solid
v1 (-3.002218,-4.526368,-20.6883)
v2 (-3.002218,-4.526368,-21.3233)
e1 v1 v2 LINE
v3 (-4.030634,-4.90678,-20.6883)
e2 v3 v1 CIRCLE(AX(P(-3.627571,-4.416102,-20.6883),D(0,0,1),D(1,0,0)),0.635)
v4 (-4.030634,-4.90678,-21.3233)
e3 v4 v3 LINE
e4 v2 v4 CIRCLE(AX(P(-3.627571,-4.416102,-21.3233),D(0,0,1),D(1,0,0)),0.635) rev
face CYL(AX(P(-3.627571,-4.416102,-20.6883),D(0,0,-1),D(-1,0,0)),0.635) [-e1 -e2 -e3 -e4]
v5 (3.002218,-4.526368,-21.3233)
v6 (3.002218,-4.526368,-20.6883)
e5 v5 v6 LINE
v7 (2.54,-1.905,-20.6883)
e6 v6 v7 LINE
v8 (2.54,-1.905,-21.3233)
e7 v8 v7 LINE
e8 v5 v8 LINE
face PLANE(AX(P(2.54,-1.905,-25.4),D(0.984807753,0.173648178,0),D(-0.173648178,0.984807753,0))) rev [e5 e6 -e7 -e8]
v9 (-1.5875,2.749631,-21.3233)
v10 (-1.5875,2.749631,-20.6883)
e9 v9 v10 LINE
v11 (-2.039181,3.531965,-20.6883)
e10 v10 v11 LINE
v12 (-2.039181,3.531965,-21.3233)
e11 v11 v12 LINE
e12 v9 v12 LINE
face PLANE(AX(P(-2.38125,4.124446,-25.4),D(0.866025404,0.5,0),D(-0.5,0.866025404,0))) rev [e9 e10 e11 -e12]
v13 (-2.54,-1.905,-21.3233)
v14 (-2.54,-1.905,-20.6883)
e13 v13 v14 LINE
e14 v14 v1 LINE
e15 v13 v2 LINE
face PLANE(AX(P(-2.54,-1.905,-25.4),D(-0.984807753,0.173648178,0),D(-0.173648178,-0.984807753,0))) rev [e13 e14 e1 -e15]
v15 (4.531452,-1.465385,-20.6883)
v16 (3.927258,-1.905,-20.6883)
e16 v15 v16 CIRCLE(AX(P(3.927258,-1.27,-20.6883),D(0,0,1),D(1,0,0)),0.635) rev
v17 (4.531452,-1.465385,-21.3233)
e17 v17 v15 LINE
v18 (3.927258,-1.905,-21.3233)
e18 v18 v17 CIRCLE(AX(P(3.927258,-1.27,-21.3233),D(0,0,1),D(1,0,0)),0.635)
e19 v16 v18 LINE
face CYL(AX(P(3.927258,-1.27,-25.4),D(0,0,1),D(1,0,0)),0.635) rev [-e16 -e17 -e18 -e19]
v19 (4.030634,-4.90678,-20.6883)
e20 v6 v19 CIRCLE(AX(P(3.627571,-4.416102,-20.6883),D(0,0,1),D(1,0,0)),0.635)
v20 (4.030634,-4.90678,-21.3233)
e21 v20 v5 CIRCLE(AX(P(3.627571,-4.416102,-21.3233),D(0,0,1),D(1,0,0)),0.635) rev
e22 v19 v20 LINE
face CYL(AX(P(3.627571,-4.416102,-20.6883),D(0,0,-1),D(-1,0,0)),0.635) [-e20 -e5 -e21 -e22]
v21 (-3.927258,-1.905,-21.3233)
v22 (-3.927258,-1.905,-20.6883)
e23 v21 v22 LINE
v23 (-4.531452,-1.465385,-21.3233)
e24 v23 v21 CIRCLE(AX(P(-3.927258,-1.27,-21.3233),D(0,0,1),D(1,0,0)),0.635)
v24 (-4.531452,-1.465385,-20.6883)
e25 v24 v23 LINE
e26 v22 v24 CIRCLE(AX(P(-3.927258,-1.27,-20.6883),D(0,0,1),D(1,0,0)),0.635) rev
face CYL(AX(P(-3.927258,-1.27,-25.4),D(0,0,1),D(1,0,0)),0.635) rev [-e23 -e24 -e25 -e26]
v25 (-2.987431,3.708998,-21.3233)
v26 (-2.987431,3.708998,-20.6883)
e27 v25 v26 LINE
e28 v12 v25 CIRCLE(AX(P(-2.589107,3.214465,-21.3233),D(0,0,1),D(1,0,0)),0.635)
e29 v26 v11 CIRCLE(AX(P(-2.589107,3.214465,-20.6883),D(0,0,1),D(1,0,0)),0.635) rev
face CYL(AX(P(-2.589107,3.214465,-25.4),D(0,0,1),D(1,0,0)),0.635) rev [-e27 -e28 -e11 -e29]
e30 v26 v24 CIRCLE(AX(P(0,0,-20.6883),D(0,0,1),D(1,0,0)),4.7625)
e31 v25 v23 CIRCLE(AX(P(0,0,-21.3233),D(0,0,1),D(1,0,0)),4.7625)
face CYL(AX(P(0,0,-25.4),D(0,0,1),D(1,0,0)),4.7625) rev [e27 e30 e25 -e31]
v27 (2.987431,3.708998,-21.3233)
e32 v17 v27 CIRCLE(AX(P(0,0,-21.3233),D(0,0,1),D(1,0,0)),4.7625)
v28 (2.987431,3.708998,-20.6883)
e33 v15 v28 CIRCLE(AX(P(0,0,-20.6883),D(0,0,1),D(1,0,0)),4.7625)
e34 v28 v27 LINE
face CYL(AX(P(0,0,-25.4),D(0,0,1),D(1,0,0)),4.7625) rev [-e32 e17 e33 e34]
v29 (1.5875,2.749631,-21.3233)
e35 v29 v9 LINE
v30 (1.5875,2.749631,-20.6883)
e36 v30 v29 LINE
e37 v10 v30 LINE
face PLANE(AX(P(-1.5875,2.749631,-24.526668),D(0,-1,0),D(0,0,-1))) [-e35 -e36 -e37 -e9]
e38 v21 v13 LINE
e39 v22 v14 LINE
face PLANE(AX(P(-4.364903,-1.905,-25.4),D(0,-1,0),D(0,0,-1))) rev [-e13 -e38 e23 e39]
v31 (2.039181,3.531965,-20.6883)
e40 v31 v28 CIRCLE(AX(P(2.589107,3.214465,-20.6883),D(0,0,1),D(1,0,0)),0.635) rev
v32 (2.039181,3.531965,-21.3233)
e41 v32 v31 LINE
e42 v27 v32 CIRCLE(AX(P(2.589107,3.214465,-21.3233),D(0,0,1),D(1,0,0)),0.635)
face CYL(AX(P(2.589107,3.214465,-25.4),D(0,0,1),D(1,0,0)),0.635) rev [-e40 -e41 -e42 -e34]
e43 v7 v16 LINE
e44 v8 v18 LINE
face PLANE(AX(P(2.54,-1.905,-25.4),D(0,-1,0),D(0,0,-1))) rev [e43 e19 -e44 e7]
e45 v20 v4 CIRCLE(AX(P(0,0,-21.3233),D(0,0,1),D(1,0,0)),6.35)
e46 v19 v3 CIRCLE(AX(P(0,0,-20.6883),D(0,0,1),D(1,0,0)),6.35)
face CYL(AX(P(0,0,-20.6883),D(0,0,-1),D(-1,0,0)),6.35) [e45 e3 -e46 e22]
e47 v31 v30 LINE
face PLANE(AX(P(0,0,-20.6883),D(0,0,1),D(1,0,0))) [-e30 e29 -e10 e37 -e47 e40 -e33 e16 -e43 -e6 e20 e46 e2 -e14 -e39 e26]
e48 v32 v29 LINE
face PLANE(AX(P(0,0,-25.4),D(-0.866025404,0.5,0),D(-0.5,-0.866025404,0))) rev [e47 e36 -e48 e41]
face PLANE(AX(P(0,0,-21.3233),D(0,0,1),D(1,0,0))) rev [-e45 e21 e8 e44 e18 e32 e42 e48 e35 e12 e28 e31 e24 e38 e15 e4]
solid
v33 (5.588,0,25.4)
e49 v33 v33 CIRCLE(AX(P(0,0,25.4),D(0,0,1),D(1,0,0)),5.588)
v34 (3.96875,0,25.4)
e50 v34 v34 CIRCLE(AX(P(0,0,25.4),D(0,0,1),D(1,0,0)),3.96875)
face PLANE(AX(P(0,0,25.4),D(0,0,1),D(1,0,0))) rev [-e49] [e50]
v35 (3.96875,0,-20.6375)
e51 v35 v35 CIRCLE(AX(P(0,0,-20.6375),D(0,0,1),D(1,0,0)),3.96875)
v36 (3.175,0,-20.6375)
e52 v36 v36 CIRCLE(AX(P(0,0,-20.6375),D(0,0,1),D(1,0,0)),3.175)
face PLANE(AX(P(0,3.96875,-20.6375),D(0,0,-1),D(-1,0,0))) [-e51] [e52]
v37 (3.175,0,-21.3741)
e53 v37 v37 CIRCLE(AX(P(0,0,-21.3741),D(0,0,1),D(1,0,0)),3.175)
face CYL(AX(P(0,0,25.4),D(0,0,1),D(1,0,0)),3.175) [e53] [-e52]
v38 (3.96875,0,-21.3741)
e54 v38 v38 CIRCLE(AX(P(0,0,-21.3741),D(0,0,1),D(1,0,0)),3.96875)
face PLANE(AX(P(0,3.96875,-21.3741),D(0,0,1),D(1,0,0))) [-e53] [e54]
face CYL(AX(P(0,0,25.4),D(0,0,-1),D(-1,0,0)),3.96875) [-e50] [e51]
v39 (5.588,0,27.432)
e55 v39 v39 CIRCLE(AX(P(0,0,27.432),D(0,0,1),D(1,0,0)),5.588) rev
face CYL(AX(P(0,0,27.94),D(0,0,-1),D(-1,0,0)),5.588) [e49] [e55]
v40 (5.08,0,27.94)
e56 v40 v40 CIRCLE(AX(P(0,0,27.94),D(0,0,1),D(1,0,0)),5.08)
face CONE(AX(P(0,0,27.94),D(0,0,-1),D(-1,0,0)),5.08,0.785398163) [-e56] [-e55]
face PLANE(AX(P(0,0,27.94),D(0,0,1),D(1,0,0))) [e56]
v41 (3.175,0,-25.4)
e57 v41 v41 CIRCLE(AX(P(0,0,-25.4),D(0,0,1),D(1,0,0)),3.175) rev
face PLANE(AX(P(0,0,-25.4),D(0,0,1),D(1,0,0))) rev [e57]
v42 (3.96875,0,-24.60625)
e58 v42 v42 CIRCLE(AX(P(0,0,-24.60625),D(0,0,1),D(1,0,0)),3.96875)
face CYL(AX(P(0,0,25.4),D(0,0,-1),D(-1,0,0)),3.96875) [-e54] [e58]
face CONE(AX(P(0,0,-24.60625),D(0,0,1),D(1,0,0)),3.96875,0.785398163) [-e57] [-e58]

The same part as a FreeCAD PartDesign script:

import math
import FreeCAD as App
import Part
import Sketcher
Q = App.Units.Quantity


def edges_at(feature, points):
    """Names of the edges that pass closest to the given points."""
    edges = feature.Shape.Edges
    near = lambda p: min(range(len(edges)), key=lambda i: edges[i].distToShape(Part.Vertex(*p))[0])
    return sorted({f"Edge{near(p) + 1}" for p in points})


def add_polygon(sketch, points):
    """Adds a closed chain of lines whose ends are joined by coincident constraints."""
    first, n = sketch.GeometryCount, len(points)
    for a, b in zip(points, points[1:] + points[:1]):
        sketch.addGeometry(Part.LineSegment(App.Vector(*a, 0), App.Vector(*b, 0)), False)
    for i in range(n):
        sketch.addConstraint(Sketcher.Constraint("Coincident", first + i, 2, first + (i + 1) % n, 1))

doc = App.newDocument("Part")
body = doc.addObject("PartDesign::Body", "Body")

# Sketch on XY plane
sketch1 = body.newObject("Sketcher::SketchObject", "Sketch")
sketch1.AttachmentSupport = (doc.getObject("XY_Plane"), [""])
sketch1.MapMode = "FlatFace"
sketch1.addGeometry(Part.Circle(App.Vector(0, 0, 0), App.Vector(0, 0, 1), 4), False)
sketch1.addConstraint(Sketcher.Constraint("Coincident", 0, 3, -1, 1))
sketch1.addConstraint(Sketcher.Constraint("Diameter", 0, Q("0.3125 in")))
pad1 = body.newObject("PartDesign::Pad", "Pad")
pad1.Profile = sketch1
pad1.Length = Q("2 in")
pad1.Midplane = True

# Sketch on YZ plane
sketch2 = body.newObject("Sketcher::SketchObject", "Sketch001")
sketch2.AttachmentSupport = (doc.getObject("YZ_Plane"), [""])
sketch2.MapMode = "FlatFace"
add_polygon(sketch2, [(4, -20.6), (3.2, -20.6), (3.2, -21.4), (4, -21.4)])  # lines 0-3
sketch2.addConstraint(Sketcher.Constraint("Horizontal", 0))
sketch2.addConstraint(Sketcher.Constraint("Vertical", 1))
sketch2.addConstraint(Sketcher.Constraint("Horizontal", 2))
sketch2.addConstraint(Sketcher.Constraint("Vertical", 3))
sketch2.addConstraint(Sketcher.Constraint("DistanceX", 0, 2, 0, 1, Q("0.03125 in")))
sketch2.addConstraint(Sketcher.Constraint("DistanceY", 1, 2, 1, 1, Q("0.029 in")))
sketch2.addConstraint(Sketcher.Constraint("DistanceX", -1, 1, 0, 2, Q("0.125 in")))
sketch2.addConstraint(Sketcher.Constraint("DistanceY", 0, 2, -1, 1, Q("0.8125 in")))
groove = body.newObject("PartDesign::Groove", "Groove")
groove.Profile = sketch2
groove.ReferenceAxis = (sketch2, ["V_Axis"])
groove.Angle = 360

# Sketch on XY plane
sketch3 = body.newObject("Sketcher::SketchObject", "Sketch002")
sketch3.AttachmentSupport = (doc.getObject("XY_Plane"), [""])
sketch3.MapMode = "FlatFace"
sketch3.AttachmentOffset = App.Placement(App.Vector(0, 0, 1 * 25.4), App.Rotation())
sketch3.addGeometry(Part.Circle(App.Vector(0, 0, 0), App.Vector(0, 0, 1), 6), False)
sketch3.addConstraint(Sketcher.Constraint("Coincident", 0, 3, -1, 1))
sketch3.addConstraint(Sketcher.Constraint("Diameter", 0, Q("0.44 in")))
pad2 = body.newObject("PartDesign::Pad", "Pad001")
pad2.Profile = sketch3
pad2.Length = Q("0.1 in")
doc.recompute()

chamfer = body.newObject("PartDesign::Chamfer", "Chamfer")
chamfer.Base = (pad2, edges_at(pad2, [(-5.588, 0, 27.94)]))
chamfer.Size = Q("0.02 in")
doc.recompute()

chamfer2 = body.newObject("PartDesign::Chamfer", "Chamfer001")
chamfer2.Base = (chamfer, edges_at(chamfer, [(-3.969, 0, -25.4)]))
chamfer2.Size = Q("0.03125 in")
body2 = doc.addObject("PartDesign::Body", "Body001")

# Sketch on XY plane
sketch4 = body2.newObject("Sketcher::SketchObject", "Sketch003")
sketch4.AttachmentSupport = (doc.getObject("XY_Plane001"), [""])
sketch4.MapMode = "FlatFace"
sketch4.AttachmentOffset = App.Placement(App.Vector(0, 0, -0.827 * 25.4), App.Rotation())
sketch4.addGeometry(Part.Circle(App.Vector(0, 0, 0), App.Vector(0, 0, 1), 6.3), False)
sketch4.addGeometry(Part.Circle(App.Vector(0, 0, 0), App.Vector(0, 0, 1), 3.2), False)
sketch4.addConstraint(Sketcher.Constraint("Coincident", 0, 3, -1, 1))
sketch4.addConstraint(Sketcher.Constraint("Coincident", 1, 3, -1, 1))
sketch4.addConstraint(Sketcher.Constraint("Diameter", 0, Q("0.5 in")))
sketch4.addConstraint(Sketcher.Constraint("Diameter", 1, Q("0.25 in")))
pad3 = body2.newObject("PartDesign::Pad", "Pad002")
pad3.Profile = sketch4
pad3.Length = Q("0.025 in")
pad3.Midplane = True

# Sketch on XY plane
sketch5 = body2.newObject("Sketcher::SketchObject", "Sketch004")
sketch5.AttachmentSupport = (doc.getObject("XY_Plane001"), [""])
sketch5.MapMode = "FlatFace"
sketch5.addGeometry(Part.LineSegment(App.Vector(0, 0, 0), App.Vector(-2.4, 4.1, 0)), False)
sketch5.addGeometry(Part.ArcOfCircle(Part.Circle(App.Vector(0, 0, 0), App.Vector(0, 0, 1), 4.8), math.radians(120), math.radians(204)), False)
sketch5.addGeometry(Part.LineSegment(App.Vector(-4.4, -1.9, 0), App.Vector(-2.5, -1.9, 0)), False)
sketch5.addGeometry(Part.LineSegment(App.Vector(-2.5, -1.9, 0), App.Vector(-3.2, -5.5, 0)), False)
sketch5.addGeometry(Part.ArcOfCircle(Part.Circle(App.Vector(0, 0, 0), App.Vector(0, 0, 1), 6.4), math.radians(-120), math.radians(-60)), False)
sketch5.addGeometry(Part.LineSegment(App.Vector(3.2, -5.5, 0), App.Vector(2.5, -1.9, 0)), False)
sketch5.addGeometry(Part.LineSegment(App.Vector(2.5, -1.9, 0), App.Vector(4.4, -1.9, 0)), False)
sketch5.addGeometry(Part.ArcOfCircle(Part.Circle(App.Vector(0, 0, 0), App.Vector(0, 0, 1), 4.8), math.radians(-24), math.radians(60)), False)
sketch5.addGeometry(Part.LineSegment(App.Vector(2.4, 4.1, 0), App.Vector(0, 0, 0)), False)
sketch5.addConstraint(Sketcher.Constraint("Coincident", 0, 2, 1, 1))
sketch5.addConstraint(Sketcher.Constraint("Coincident", 1, 2, 2, 1))
sketch5.addConstraint(Sketcher.Constraint("Coincident", 2, 2, 3, 1))
sketch5.addConstraint(Sketcher.Constraint("Coincident", 3, 2, 4, 1))
sketch5.addConstraint(Sketcher.Constraint("Coincident", 4, 2, 5, 1))
sketch5.addConstraint(Sketcher.Constraint("Coincident", 5, 2, 6, 1))
sketch5.addConstraint(Sketcher.Constraint("Coincident", 6, 2, 7, 1))
sketch5.addConstraint(Sketcher.Constraint("Coincident", 7, 2, 8, 1))
sketch5.addConstraint(Sketcher.Constraint("Coincident", 8, 2, 0, 1))
sketch5.addConstraint(Sketcher.Constraint("Horizontal", 2))
sketch5.addConstraint(Sketcher.Constraint("Horizontal", 6))
sketch5.addConstraint(Sketcher.Constraint("Coincident", 1, 3, -1, 1))
sketch5.addConstraint(Sketcher.Constraint("Coincident", 4, 3, -1, 1))
sketch5.addConstraint(Sketcher.Constraint("Coincident", 7, 3, -1, 1))
sketch5.addConstraint(Sketcher.Constraint("Coincident", 8, 2, -1, 1))
sketch5.addConstraint(Sketcher.Constraint("Equal", 1, 7))
sketch5.addConstraint(Sketcher.Constraint("Symmetric", 2, 2, 5, 2, -2))
sketch5.addConstraint(Sketcher.Constraint("Horizontal", 3, 2, 4, 2))
sketch5.addConstraint(Sketcher.Constraint("Horizontal", 0, 2, 7, 2))
sketch5.addConstraint(Sketcher.Constraint("Radius", 4, Q("0.25 in")))
sketch5.addConstraint(Sketcher.Constraint("Angle", 0, Q("120 deg")))
sketch5.addConstraint(Sketcher.Constraint("Angle", 3, Q("-100 deg")))
sketch5.addConstraint(Sketcher.Constraint("Radius", 1, Q("0.1875 in")))
sketch5.addConstraint(Sketcher.Constraint("DistanceX", 2, 2, -1, 1, Q("0.1 in")))
sketch5.addConstraint(Sketcher.Constraint("DistanceY", 1, 2, -1, 1, Q("0.075 in")))
pocket1 = body2.newObject("PartDesign::Pocket", "Pocket")
pocket1.Profile = sketch5
pocket1.Type = "ThroughAll"

# Sketch on XY plane
sketch6 = body2.newObject("Sketcher::SketchObject", "Sketch005")
sketch6.AttachmentSupport = (doc.getObject("XY_Plane001"), [""])
sketch6.MapMode = "FlatFace"
sketch6.AttachmentOffset = App.Placement(App.Vector(0, 0, -0.8145 * 25.4), App.Rotation())
sketch6.addGeometry(Part.LineSegment(App.Vector(-1.6, 2.7, 0), App.Vector(1.6, 2.7, 0)), False)
sketch6.addGeometry(Part.ArcOfCircle(Part.Circle(App.Vector(0, 0, 0), App.Vector(0, 0, 1), 3.2), math.radians(60), math.radians(120)), False)
sketch6.addConstraint(Sketcher.Constraint("Coincident", 0, 1, 1, 2))
sketch6.addConstraint(Sketcher.Constraint("Coincident", 1, 1, 0, 2))
sketch6.addConstraint(Sketcher.Constraint("Horizontal", 0))
sketch6.addConstraint(Sketcher.Constraint("Coincident", 1, 3, -1, 1))
sketch6.addConstraint(Sketcher.Constraint("Radius", 1, Q("0.125 in")))
sketch6.addConstraint(Sketcher.Constraint("DistanceX", 0, 1, 0, 2, Q("0.125 in")))
pad4 = body2.newObject("PartDesign::Pad", "Pad003")
pad4.Profile = sketch6
pad4.Length = Q("0.025 in")
pad4.Reversed = True
doc.recompute()

fillet = body2.newObject("PartDesign::Fillet", "Fillet")
fillet.Base = (pad4, edges_at(pad4, [
    (2.381, 4.124, -21.006),
    (3.174, -5.5, -21.006),
    (-4.365, -1.905, -21.006),
    (4.365, -1.905, -21.006),
    (-3.174, -5.5, -21.006),
    (-2.381, 4.124, -21.006),
]))
fillet.Radius = Q("0.025 in")

doc.recompute()
